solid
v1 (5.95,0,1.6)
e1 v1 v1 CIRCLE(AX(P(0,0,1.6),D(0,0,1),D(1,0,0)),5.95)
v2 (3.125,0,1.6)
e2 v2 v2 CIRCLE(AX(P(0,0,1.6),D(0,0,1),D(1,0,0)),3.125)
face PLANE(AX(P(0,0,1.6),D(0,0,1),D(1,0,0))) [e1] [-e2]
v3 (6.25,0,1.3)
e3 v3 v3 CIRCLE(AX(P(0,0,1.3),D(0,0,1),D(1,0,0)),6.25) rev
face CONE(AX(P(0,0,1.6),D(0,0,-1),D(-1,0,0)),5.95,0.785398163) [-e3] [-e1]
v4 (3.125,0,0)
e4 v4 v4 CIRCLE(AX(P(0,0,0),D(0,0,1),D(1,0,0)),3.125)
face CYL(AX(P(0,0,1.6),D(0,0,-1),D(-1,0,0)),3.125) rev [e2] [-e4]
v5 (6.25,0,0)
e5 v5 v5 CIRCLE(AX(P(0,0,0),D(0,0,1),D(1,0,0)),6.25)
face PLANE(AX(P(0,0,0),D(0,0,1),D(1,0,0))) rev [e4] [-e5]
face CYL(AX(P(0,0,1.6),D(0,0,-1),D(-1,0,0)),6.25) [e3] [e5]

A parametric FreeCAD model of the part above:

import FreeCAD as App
import Part
import Sketcher

V = App.Vector


def edges_at(feature, points):
    """Names of the edges that pass closest to the given points."""
    edges = feature.Shape.Edges
    near = lambda p: min(range(len(edges)), key=lambda i: edges[i].distToShape(Part.Vertex(*p))[0])
    return sorted({f"Edge{near(p) + 1}" for p in points})

doc = App.newDocument("Part")
body = doc.addObject("PartDesign::Body", "Body")

sketch1 = doc.addObject("Sketcher::SketchObject", "Sketch")
body.addObject(sketch1)
sketch1.AttachmentSupport = (doc.XY_Plane, [""])
sketch1.MapMode = "FlatFace"
sketch1.addGeometry([
    Part.Circle(V(0, 0, 0), V(0, 0, 1), 6.2),
    Part.Circle(V(0, 0, 0), V(0, 0, 1), 3.1),
], False)
sketch1.addConstraint([
    Sketcher.Constraint("Coincident", 0, 3, -1, 1),
    Sketcher.Constraint("Coincident", 1, 3, -1, 1),
    Sketcher.Constraint("Diameter", 0, 12.5),
    Sketcher.Constraint("Diameter", 1, 6.25),
])
pad1 = doc.addObject("PartDesign::Pad", "Pad")
body.addObject(pad1)
pad1.Profile = sketch1
pad1.Length = 1.6
doc.recompute()

chamfer = doc.addObject("PartDesign::Chamfer", "Chamfer")
body.addObject(chamfer)
chamfer.Base = (pad1, edges_at(pad1, [(-6.25, 0, 1.6)]))
chamfer.Size = 0.3

doc.recompute()
